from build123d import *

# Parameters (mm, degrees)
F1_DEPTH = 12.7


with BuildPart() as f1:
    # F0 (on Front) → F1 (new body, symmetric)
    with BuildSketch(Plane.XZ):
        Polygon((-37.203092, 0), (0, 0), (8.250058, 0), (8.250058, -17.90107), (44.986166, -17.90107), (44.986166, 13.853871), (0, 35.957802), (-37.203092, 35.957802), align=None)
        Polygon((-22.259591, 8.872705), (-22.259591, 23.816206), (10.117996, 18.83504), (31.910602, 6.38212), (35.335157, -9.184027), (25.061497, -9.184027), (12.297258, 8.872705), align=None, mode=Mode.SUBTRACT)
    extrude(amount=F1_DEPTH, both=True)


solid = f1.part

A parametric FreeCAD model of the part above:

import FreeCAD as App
import Part
import Sketcher
from FreeCAD import Vector
Q = App.Units.Quantity


def add_polygon(sketch, points):
    """Adds a closed chain of lines whose ends are joined by coincident constraints."""
    first, n = sketch.GeometryCount, len(points)
    for a, b in zip(points, points[1:] + points[:1]):
        sketch.addGeometry(Part.LineSegment(App.Vector(*a, 0), App.Vector(*b, 0)), False)
    for i in range(n):
        sketch.addConstraint(Sketcher.Constraint("Coincident", first + i, 2, first + (i + 1) % n, 1))

doc = App.newDocument("Part")
body = doc.addObject("PartDesign::Body", "Body")

sketch1 = doc.addObject("Sketcher::SketchObject", "Sketch")
body.addObject(sketch1)
sketch1.AttachmentSupport = (doc.XZ_Plane, [""])
sketch1.MapMode = "FlatFace"
add_polygon(sketch1, [(-37.203092, 0), (8.250058, 0), (8.250058, -17.90107), (44.986166, -17.90107), (44.986166, 13.853871), (0, 35.957802), (-37.203092, 35.957802)])
add_polygon(sketch1, [(12.297258, 8.872705), (-22.259591, 8.872705), (-22.259591, 23.816206), (10.117996, 18.83504), (31.910602, 6.38212), (35.335157, -9.184027), (25.061497, -9.184027)])
sketch1.addConstraint([
    Sketcher.Constraint("Horizontal", 0),
    Sketcher.Constraint("Vertical", 1),
    Sketcher.Constraint("Horizontal", 2),
    Sketcher.Constraint("Vertical", 3),
    Sketcher.Constraint("Horizontal", 5),
    Sketcher.Constraint("Vertical", 6),
    Sketcher.Constraint("Horizontal", 7),
    Sketcher.Constraint("Vertical", 8),
    Sketcher.Constraint("Horizontal", 12),
    Sketcher.Constraint("PointOnObject", 0, 2, -1),
    Sketcher.Constraint("PointOnObject", 4, 2, -2),
    Sketcher.Constraint("DistanceY", 8, 1, 8, 2, Q("14.943501 mm")),
    Sketcher.Constraint("DistanceX", 0, 1, 0, 2, Q("45.45315 mm")),
    Sketcher.Constraint("DistanceX", 2, 1, 2, 2, Q("36.736108 mm")),
    Sketcher.Constraint("DistanceX", 5, 2, 5, 1, Q("37.203092 mm")),
    Sketcher.Constraint("DistanceX", 7, 2, 7, 1, Q("34.556849 mm")),
    Sketcher.Constraint("DistanceX", 12, 2, 12, 1, Q("10.27366 mm")),
    Sketcher.Constraint("DistanceY", 1, 2, 1, 1, Q("17.90107 mm")),
    Sketcher.Constraint("DistanceY", 3, 1, 3, 2, Q("31.754941 mm")),
    Sketcher.Constraint("DistanceX", 6, 2, 7, 2, Q("14.943501 mm")),
    Sketcher.Constraint("DistanceX", 1, 2, 11, 2, Q("27.085099 mm")),
    Sketcher.Constraint("Distance", 10, Q("25.099659 mm")),
    Sketcher.Constraint("DistanceY", 6, 2, 6, 1, Q("35.957802 mm")),
    Sketcher.Constraint("DistanceY", -1, 1, 9, 2, Q("18.83504 mm")),
    Sketcher.Constraint("DistanceY", -1, 1, 10, 2, Q("6.38212 mm")),
    Sketcher.Constraint("DistanceX", 0, 2, 9, 2, Q("1.867938 mm")),
    Sketcher.Constraint("DistanceY", 12, 2, 13, 2, Q("18.056732 mm")),
    Sketcher.Constraint("Distance", 9, Q("32.758513 mm")),
])
pad1 = doc.addObject("PartDesign::Pad", "Pad")
body.addObject(pad1)
pad1.Profile = sketch1
pad1.Length = Q("1 in")
pad1.Midplane = True

doc.recompute()
